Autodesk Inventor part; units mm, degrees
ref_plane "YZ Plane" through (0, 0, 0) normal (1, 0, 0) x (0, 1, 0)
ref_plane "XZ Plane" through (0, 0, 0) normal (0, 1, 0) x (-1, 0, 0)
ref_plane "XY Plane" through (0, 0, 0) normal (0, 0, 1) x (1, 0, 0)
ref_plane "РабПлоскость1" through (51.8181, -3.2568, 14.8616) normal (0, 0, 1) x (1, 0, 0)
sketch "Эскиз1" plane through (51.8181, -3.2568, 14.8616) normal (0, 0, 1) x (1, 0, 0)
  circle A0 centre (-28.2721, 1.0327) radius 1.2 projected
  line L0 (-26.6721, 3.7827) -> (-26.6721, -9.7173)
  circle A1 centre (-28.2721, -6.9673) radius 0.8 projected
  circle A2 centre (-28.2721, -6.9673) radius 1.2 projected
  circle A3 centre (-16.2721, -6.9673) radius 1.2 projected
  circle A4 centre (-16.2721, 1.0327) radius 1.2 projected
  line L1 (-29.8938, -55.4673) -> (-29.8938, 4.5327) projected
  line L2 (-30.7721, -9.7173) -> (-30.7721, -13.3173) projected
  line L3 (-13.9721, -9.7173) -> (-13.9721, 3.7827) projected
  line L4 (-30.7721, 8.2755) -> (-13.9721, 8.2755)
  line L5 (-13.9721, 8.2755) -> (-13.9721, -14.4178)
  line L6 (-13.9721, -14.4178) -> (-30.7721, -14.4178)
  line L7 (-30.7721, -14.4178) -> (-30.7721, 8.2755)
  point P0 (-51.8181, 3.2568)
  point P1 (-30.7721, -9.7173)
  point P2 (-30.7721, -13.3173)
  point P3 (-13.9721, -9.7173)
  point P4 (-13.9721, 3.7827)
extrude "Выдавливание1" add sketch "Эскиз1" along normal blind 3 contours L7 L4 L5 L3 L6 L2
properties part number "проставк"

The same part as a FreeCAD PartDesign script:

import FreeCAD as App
import Part
import Sketcher
from FreeCAD import Vector
Q = App.Units.Quantity

doc = App.newDocument("Part")
body = doc.addObject("PartDesign::Body", "Body")

sketch1 = doc.addObject("Sketcher::SketchObject", "Sketch")
body.addObject(sketch1)
sketch1.AttachmentSupport = (doc.XY_Plane, [""])
sketch1.MapMode = "FlatFace"
sketch1.AttachmentOffset = App.Placement(Vector(0, 0, 14.8616), App.Rotation())
sketch1.addGeometry(Part.LineSegment(Vector(21.046, 5.0187, 0), Vector(21.046, -17.6746, 0)), False)
sketch1.addGeometry(Part.LineSegment(Vector(21.046, -17.6746, 0), Vector(37.846, -17.6746, 0)), False)
sketch1.addGeometry(Part.LineSegment(Vector(37.846, -17.6746, 0), Vector(37.846, 5.0187, 0)), False)
sketch1.addGeometry(Part.LineSegment(Vector(37.846, 5.0187, 0), Vector(21.046, 5.0187, 0)), False)
sketch1.addGeometry(Part.Circle(Vector(23.546, -10.2241, 0), Vector(0, 0, 1), 1.2), False)
sketch1.addGeometry(Part.Circle(Vector(35.546, -10.2241, 0), Vector(0, 0, 1), 1.2), False)
sketch1.addGeometry(Part.Circle(Vector(23.546, -2.2241, 0), Vector(0, 0, 1), 1.2), False)
sketch1.addGeometry(Part.Circle(Vector(35.546, -2.2241, 0), Vector(0, 0, 1), 1.2), False)
sketch1.addConstraint(Sketcher.Constraint("Coincident", 0, 2, 1, 1))
sketch1.addConstraint(Sketcher.Constraint("Coincident", 1, 2, 2, 1))
sketch1.addConstraint(Sketcher.Constraint("Coincident", 2, 2, 3, 1))
sketch1.addConstraint(Sketcher.Constraint("Coincident", 3, 2, 0, 1))
sketch1.addConstraint(Sketcher.Constraint("Vertical", 0))
sketch1.addConstraint(Sketcher.Constraint("Horizontal", 1))
sketch1.addConstraint(Sketcher.Constraint("Vertical", 2))
sketch1.addConstraint(Sketcher.Constraint("Horizontal", 3))
sketch1.addConstraint(Sketcher.Constraint("Equal", 4, 5))
sketch1.addConstraint(Sketcher.Constraint("Equal", 5, 6))
sketch1.addConstraint(Sketcher.Constraint("Equal", 6, 7))
sketch1.addConstraint(Sketcher.Constraint("Horizontal", 4, 3, 5, 3))
sketch1.addConstraint(Sketcher.Constraint("Horizontal", 6, 3, 7, 3))
sketch1.addConstraint(Sketcher.Constraint("Vertical", 4, 3, 6, 3))
sketch1.addConstraint(Sketcher.Constraint("Vertical", 5, 3, 7, 3))
sketch1.addConstraint(Sketcher.Constraint("Diameter", 4, Q("2.4 mm")))
sketch1.addConstraint(Sketcher.Constraint("DistanceX", 1, 1, 1, 2, Q("16.8 mm")))
sketch1.addConstraint(Sketcher.Constraint("DistanceX", 4, 3, 5, 3, Q("12 mm")))
sketch1.addConstraint(Sketcher.Constraint("DistanceY", 4, 3, 6, 3, Q("8 mm")))
sketch1.addConstraint(Sketcher.Constraint("DistanceX", 0, 2, 4, 3, Q("2.5 mm")))
sketch1.addConstraint(Sketcher.Constraint("DistanceY", 0, 2, 0, 1, Q("22.6933 mm")))
sketch1.addConstraint(Sketcher.Constraint("DistanceX", -1, 1, 4, 3, Q("23.546 mm")))
sketch1.addConstraint(Sketcher.Constraint("DistanceY", 4, 3, -1, 1, Q("10.224 mm")))
sketch1.addConstraint(Sketcher.Constraint("DistanceY", 0, 2, -1, 1, Q("17.6746 mm")))
pad1 = doc.addObject("PartDesign::Pad", "Pad")
body.addObject(pad1)
pad1.Profile = sketch1
pad1.Length = 3

doc.recompute()
